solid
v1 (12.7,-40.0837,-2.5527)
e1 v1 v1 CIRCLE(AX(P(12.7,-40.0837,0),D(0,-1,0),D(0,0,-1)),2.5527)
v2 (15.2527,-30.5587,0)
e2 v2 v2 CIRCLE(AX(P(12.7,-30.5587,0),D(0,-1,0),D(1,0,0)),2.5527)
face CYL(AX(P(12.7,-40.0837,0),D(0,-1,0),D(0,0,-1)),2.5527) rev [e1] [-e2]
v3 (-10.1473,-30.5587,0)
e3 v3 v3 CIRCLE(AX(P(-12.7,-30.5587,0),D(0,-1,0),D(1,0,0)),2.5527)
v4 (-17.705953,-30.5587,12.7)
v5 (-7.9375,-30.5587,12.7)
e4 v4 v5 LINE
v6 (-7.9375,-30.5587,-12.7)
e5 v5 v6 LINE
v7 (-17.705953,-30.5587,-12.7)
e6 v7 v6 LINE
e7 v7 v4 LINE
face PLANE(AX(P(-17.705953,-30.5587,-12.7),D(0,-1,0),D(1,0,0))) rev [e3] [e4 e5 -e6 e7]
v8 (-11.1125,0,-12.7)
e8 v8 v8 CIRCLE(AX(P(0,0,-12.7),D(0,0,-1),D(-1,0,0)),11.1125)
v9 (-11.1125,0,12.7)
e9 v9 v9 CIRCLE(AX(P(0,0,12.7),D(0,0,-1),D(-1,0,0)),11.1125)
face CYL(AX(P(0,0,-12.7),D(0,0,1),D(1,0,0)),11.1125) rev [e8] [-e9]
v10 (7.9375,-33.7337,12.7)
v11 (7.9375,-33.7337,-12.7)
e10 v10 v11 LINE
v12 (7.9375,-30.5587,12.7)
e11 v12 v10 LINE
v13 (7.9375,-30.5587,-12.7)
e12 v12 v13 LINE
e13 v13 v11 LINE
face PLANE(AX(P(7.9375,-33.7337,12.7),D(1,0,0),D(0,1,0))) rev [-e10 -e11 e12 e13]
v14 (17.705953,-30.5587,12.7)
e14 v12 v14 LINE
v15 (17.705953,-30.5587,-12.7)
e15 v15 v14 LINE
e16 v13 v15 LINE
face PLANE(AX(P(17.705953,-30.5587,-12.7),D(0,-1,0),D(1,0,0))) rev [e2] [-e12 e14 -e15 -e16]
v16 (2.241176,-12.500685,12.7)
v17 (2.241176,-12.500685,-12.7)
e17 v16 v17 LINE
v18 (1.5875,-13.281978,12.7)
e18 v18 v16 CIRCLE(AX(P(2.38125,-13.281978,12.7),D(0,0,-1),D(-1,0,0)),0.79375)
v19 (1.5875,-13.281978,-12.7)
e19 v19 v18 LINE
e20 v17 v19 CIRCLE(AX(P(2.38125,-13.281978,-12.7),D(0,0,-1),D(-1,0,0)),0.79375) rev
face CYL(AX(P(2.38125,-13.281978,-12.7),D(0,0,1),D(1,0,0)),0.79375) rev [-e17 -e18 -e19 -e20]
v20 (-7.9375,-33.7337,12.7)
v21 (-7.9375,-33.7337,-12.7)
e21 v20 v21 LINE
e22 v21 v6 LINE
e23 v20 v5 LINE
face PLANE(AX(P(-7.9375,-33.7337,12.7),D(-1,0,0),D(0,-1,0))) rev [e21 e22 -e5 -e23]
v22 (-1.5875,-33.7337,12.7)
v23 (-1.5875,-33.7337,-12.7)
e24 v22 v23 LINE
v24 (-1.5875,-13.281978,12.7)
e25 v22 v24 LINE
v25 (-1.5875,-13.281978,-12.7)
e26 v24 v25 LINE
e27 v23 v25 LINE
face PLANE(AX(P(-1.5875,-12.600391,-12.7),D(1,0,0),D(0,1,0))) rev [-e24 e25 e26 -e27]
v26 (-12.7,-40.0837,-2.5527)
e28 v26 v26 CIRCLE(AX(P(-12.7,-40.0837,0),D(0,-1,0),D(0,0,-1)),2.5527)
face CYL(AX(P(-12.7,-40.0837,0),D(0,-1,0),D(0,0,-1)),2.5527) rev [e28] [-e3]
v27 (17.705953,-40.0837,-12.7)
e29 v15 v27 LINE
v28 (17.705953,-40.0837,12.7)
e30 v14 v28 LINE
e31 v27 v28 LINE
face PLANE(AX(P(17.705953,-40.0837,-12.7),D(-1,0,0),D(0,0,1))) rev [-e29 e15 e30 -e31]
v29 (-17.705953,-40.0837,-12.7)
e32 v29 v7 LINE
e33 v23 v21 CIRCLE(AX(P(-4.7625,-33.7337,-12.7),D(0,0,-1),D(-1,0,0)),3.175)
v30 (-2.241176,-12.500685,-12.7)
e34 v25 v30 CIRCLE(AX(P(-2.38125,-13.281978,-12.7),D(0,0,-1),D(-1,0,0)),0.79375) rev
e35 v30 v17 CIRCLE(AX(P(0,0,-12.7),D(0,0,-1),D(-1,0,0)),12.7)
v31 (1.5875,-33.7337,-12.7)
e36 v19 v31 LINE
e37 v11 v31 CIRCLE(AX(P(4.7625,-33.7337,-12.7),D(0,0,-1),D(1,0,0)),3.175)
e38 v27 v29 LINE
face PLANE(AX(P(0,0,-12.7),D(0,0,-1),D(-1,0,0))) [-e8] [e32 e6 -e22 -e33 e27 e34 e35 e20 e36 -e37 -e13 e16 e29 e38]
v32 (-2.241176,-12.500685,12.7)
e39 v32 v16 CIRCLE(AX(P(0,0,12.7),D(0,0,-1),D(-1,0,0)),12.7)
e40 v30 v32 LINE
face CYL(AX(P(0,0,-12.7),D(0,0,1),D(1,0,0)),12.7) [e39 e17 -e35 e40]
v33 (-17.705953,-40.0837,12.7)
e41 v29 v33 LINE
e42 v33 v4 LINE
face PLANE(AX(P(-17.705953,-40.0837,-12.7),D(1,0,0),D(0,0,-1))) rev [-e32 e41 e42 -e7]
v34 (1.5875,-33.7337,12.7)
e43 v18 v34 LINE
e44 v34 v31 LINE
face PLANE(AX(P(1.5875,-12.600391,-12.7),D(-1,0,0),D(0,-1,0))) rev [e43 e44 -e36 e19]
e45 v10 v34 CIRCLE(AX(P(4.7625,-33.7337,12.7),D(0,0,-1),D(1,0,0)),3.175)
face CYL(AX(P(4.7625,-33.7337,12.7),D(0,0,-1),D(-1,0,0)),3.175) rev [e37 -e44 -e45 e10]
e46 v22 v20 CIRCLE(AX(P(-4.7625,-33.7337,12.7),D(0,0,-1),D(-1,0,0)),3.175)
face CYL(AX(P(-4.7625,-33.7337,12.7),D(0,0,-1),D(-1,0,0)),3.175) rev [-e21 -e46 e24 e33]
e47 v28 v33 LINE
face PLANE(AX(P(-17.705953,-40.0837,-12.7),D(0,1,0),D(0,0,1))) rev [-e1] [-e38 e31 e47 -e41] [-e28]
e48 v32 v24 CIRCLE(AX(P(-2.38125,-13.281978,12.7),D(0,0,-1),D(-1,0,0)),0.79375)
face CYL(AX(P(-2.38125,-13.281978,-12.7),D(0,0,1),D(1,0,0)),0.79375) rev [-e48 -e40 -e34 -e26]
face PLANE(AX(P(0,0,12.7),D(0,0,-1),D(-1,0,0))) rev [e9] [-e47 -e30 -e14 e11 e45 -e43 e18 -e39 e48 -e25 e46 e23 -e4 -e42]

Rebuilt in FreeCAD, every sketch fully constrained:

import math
import FreeCAD as App
import Part
import Sketcher

V = App.Vector
Q = App.Units.Quantity


def edges_at(feature, points):
    """Names of the edges that pass closest to the given points."""
    edges = feature.Shape.Edges
    near = lambda p: min(range(len(edges)), key=lambda i: edges[i].distToShape(Part.Vertex(*p))[0])
    return sorted({f"Edge{near(p) + 1}" for p in points})

doc = App.newDocument("Part")
body = doc.addObject("PartDesign::Body", "Body")

sketch1 = body.newObject("Sketcher::SketchObject", "Sketch")
sketch1.AttachmentSupport = (doc.getObject("XY_Plane"), [""])
sketch1.MapMode = "FlatFace"
sketch1.addGeometry(Part.LineSegment(V(17.7, -40.1, 0), V(-17.7, -40.1, 0)), False)
sketch1.addGeometry(Part.LineSegment(V(-17.7, -40.1, 0), V(-17.7, -30.6, 0)), False)
sketch1.addGeometry(Part.LineSegment(V(-17.7, -30.6, 0), V(-1.6, -30.6, 0)), False)
sketch1.addGeometry(Part.LineSegment(V(-1.6, -30.6, 0), V(-1.6, -12.6, 0)), False)
sketch1.addGeometry(Part.ArcOfCircle(Part.Circle(V(0, 0, 0), V(0, 0, 1), 12.7), math.radians(-83), math.radians(263)), False)
sketch1.addGeometry(Part.LineSegment(V(1.6, -12.6, 0), V(1.6, -30.6, 0)), False)
sketch1.addGeometry(Part.LineSegment(V(1.6, -30.6, 0), V(17.7, -30.6, 0)), False)
sketch1.addGeometry(Part.LineSegment(V(17.7, -30.6, 0), V(17.7, -40.1, 0)), False)
sketch1.addGeometry(Part.Circle(V(0, 0, 0), V(0, 0, 1), 11.1), False)
sketch1.addConstraint(Sketcher.Constraint("Coincident", 0, 2, 1, 1))
sketch1.addConstraint(Sketcher.Constraint("Coincident", 1, 2, 2, 1))
sketch1.addConstraint(Sketcher.Constraint("Coincident", 2, 2, 3, 1))
sketch1.addConstraint(Sketcher.Constraint("Coincident", 3, 2, 4, 2))
sketch1.addConstraint(Sketcher.Constraint("Coincident", 4, 1, 5, 1))
sketch1.addConstraint(Sketcher.Constraint("Coincident", 5, 2, 6, 1))
sketch1.addConstraint(Sketcher.Constraint("Coincident", 6, 2, 7, 1))
sketch1.addConstraint(Sketcher.Constraint("Coincident", 7, 2, 0, 1))
sketch1.addConstraint(Sketcher.Constraint("Horizontal", 0))
sketch1.addConstraint(Sketcher.Constraint("Vertical", 1))
sketch1.addConstraint(Sketcher.Constraint("Horizontal", 2))
sketch1.addConstraint(Sketcher.Constraint("Vertical", 3))
sketch1.addConstraint(Sketcher.Constraint("Vertical", 5))
sketch1.addConstraint(Sketcher.Constraint("Horizontal", 6))
sketch1.addConstraint(Sketcher.Constraint("Vertical", 7))
sketch1.addConstraint(Sketcher.Constraint("Coincident", 4, 3, -1, 1))
sketch1.addConstraint(Sketcher.Constraint("Coincident", 8, 3, -1, 1))
sketch1.addConstraint(Sketcher.Constraint("Symmetric", 2, 2, 5, 2, -2))
sketch1.addConstraint(Sketcher.Constraint("Equal", 2, 6))
sketch1.addConstraint(Sketcher.Constraint("Radius", 4, Q("0.5 in")))
sketch1.addConstraint(Sketcher.Constraint("Diameter", 8, Q("0.875 in")))
sketch1.addConstraint(Sketcher.Constraint("DistanceY", 1, 1, 1, 2, Q("0.375 in")))
sketch1.addConstraint(Sketcher.Constraint("DistanceX", 2, 2, -1, 1, Q("0.0625 in")))
sketch1.addConstraint(Sketcher.Constraint("DistanceY", 3, 1, 3, 2, Q("17.958309 mm")))
sketch1.addConstraint(Sketcher.Constraint("DistanceX", 0, 2, 0, 1, Q("35.411907 mm")))
pad1 = body.newObject("PartDesign::Pad", "Pad")
pad1.Profile = sketch1
pad1.Length = Q("1 in")
pad1.Midplane = True
doc.recompute()

fillet = body.newObject("PartDesign::Fillet", "Fillet")
fillet.Base = (pad1, edges_at(pad1, [(1.587, -12.6, 0), (-1.587, -12.6, 0)]))
fillet.Radius = Q("0.03125 in")
doc.recompute()

fillet2 = body.newObject("PartDesign::Fillet", "Fillet001")
fillet2.Base = (fillet, edges_at(fillet, [(1.587, -30.559, 0), (-1.587, -30.559, 0)]))
fillet2.Radius = Q("0.03125 in")

sketch2 = body.newObject("Sketcher::SketchObject", "Sketch001")
sketch2.AttachmentSupport = (doc.getObject("XZ_Plane"), [""])
sketch2.MapMode = "FlatFace"
sketch2.AttachmentOffset = App.Placement(V(0, 0, 40.0837), App.Rotation())
sketch2.addGeometry(Part.Circle(V(-12.7, 0, 0), V(0, 0, 1), 2.6), False)
sketch2.addGeometry(Part.Circle(V(12.7, 0, 0), V(0, 0, 1), 2.6), False)
sketch2.addConstraint(Sketcher.Constraint("Equal", 0, 1))
sketch2.addConstraint(Sketcher.Constraint("Symmetric", 0, 3, 1, 3, -1, 1))
sketch2.addConstraint(Sketcher.Constraint("PointOnObject", 0, 3, -1))
sketch2.addConstraint(Sketcher.Constraint("Diameter", 0, Q("0.201 in")))
sketch2.addConstraint(Sketcher.Constraint("DistanceX", 0, 3, 1, 3, Q("1 in")))
doc.recompute()
hole = body.newObject("PartDesign::Hole", "Hole")
hole.Profile = sketch2
hole.ThreadType = "None"
hole.Diameter = Q("0.201 in")
hole.DepthType = "Dimension"
hole.Depth = Q("0.75 in")
hole.DrillPoint = "Angled"
hole.DrillPointAngle = 118

sketch3 = body.newObject("Sketcher::SketchObject", "Sketch002")
sketch3.AttachmentSupport = (doc.getObject("XY_Plane"), [""])
sketch3.MapMode = "FlatFace"
sketch3.AttachmentOffset = App.Placement(V(0, 0, -0.5 * 25.4), App.Rotation())
sketch3.addGeometry(Part.LineSegment(V(-1.6, -29.8, 0), V(-1.6, -33.7, 0)), False)
sketch3.addGeometry(Part.ArcOfCircle(Part.Circle(V(-4.8, -33.7, 0), V(0, 0, 1), 3.2), math.radians(180), math.radians(360)), False)
sketch3.addGeometry(Part.LineSegment(V(-7.9, -33.7, 0), V(-7.9, -30.6, 0)), False)
sketch3.addGeometry(Part.LineSegment(V(-7.9, -30.6, 0), V(-2.4, -30.6, 0)), False)
sketch3.addGeometry(Part.ArcOfCircle(Part.Circle(V(-2.4, -29.8, 0), V(0, 0, 1), 0.8), math.radians(-90), math.radians(0)), False)
sketch3.addGeometry(Part.LineSegment(V(2.4, -30.6, 0), V(7.9, -30.6, 0)), False)
sketch3.addGeometry(Part.LineSegment(V(7.9, -30.6, 0), V(7.9, -33.7, 0)), False)
sketch3.addGeometry(Part.ArcOfCircle(Part.Circle(V(4.8, -33.7, 0), V(0, 0, 1), 3.2), math.radians(180), math.radians(360)), False)
sketch3.addGeometry(Part.LineSegment(V(1.6, -33.7, 0), V(1.6, -29.8, 0)), False)
sketch3.addGeometry(Part.ArcOfCircle(Part.Circle(V(2.4, -29.8, 0), V(0, 0, 1), 0.8), math.radians(180), math.radians(270)), False)
sketch3.addConstraint(Sketcher.Constraint("Tangent", 0, 2, 1, 2))
sketch3.addConstraint(Sketcher.Constraint("Tangent", 1, 1, 2, 1))
sketch3.addConstraint(Sketcher.Constraint("Coincident", 2, 2, 3, 1))
sketch3.addConstraint(Sketcher.Constraint("Tangent", 3, 2, 4, 1))
sketch3.addConstraint(Sketcher.Constraint("Tangent", 4, 2, 0, 1))
sketch3.addConstraint(Sketcher.Constraint("Coincident", 5, 2, 6, 1))
sketch3.addConstraint(Sketcher.Constraint("Tangent", 6, 2, 7, 2))
sketch3.addConstraint(Sketcher.Constraint("Tangent", 7, 1, 8, 1))
sketch3.addConstraint(Sketcher.Constraint("Tangent", 8, 2, 9, 1))
sketch3.addConstraint(Sketcher.Constraint("Tangent", 9, 2, 5, 1))
sketch3.addConstraint(Sketcher.Constraint("Vertical", 0))
sketch3.addConstraint(Sketcher.Constraint("Vertical", 2))
sketch3.addConstraint(Sketcher.Constraint("Horizontal", 3))
sketch3.addConstraint(Sketcher.Constraint("Horizontal", 5))
sketch3.addConstraint(Sketcher.Constraint("Vertical", 6))
sketch3.addConstraint(Sketcher.Constraint("Vertical", 8))
sketch3.addConstraint(Sketcher.Constraint("Equal", 1, 7))
sketch3.addConstraint(Sketcher.Constraint("Equal", 4, 9))
sketch3.addConstraint(Sketcher.Constraint("Symmetric", 1, 3, 7, 3, -2))
sketch3.addConstraint(Sketcher.Constraint("Horizontal", 4, 3, 9, 3))
sketch3.addConstraint(Sketcher.Constraint("Radius", 1, Q("0.125 in")))
sketch3.addConstraint(Sketcher.Constraint("Radius", 4, Q("0.03125 in")))
sketch3.addConstraint(Sketcher.Constraint("DistanceX", 1, 1, 7, 3, Q("0.5 in")))
sketch3.addConstraint(Sketcher.Constraint("DistanceY", 0, 2, 0, 1, Q("0.15625 in")))
sketch3.addConstraint(Sketcher.Constraint("DistanceY", 1, 3, -1, 1, Q("33.7337 mm")))
pocket1 = body.newObject("PartDesign::Pocket", "Pocket")
pocket1.Profile = sketch3
pocket1.Type = "ThroughAll"
pocket1.Reversed = True

doc.recompute()
